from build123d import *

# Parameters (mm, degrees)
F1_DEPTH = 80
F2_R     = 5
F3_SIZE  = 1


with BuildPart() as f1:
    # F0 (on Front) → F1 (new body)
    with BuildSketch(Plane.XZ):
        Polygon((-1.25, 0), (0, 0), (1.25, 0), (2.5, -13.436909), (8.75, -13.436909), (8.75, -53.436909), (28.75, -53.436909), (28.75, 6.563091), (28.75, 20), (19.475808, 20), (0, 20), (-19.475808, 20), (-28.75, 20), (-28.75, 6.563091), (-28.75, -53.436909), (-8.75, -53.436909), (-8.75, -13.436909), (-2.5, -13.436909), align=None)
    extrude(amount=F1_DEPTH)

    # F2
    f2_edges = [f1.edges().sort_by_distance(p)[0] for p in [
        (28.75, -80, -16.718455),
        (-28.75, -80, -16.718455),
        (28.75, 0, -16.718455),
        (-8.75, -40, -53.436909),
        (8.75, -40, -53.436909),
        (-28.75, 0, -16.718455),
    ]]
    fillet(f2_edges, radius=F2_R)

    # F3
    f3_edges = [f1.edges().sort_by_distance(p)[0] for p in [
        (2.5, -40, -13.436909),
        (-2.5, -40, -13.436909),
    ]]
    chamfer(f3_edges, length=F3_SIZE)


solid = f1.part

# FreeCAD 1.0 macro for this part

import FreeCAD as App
import Part
import Sketcher
from FreeCAD import Vector
Q = App.Units.Quantity


def edges_at(feature, points):
    """Names of the edges that pass closest to the given points."""
    edges = feature.Shape.Edges
    near = lambda p: min(range(len(edges)), key=lambda i: edges[i].distToShape(Part.Vertex(*p))[0])
    return sorted({f"Edge{near(p) + 1}" for p in points})

doc = App.newDocument("Part")
body = doc.addObject("PartDesign::Body", "Body")

# Sketch on XZ plane
sketch1 = body.newObject("Sketcher::SketchObject", "Sketch")
sketch1.AttachmentSupport = (doc.getObject("XZ_Plane"), [""])
sketch1.MapMode = "FlatFace"
sketch1.addGeometry([
    Part.LineSegment(Vector(-1.2, 0, 0), Vector(1.2, 0, 0)),  # 0
    Part.LineSegment(Vector(1.2, 0, 0), Vector(2.5, -13.4, 0)),  # 1
    Part.LineSegment(Vector(2.5, -13.4, 0), Vector(8.8, -13.4, 0)),  # 2
    Part.LineSegment(Vector(8.8, -13.4, 0), Vector(8.8, -53.4, 0)),  # 3
    Part.LineSegment(Vector(8.8, -53.4, 0), Vector(28.8, -53.4, 0)),  # 4
    Part.LineSegment(Vector(28.8, -53.4, 0), Vector(28.8, 20, 0)),  # 5
    Part.LineSegment(Vector(28.8, 20, 0), Vector(-28.8, 20, 0)),  # 6
    Part.LineSegment(Vector(-28.8, 20, 0), Vector(-28.8, -53.4, 0)),  # 7
    Part.LineSegment(Vector(-28.8, -53.4, 0), Vector(-8.8, -53.4, 0)),  # 8
    Part.LineSegment(Vector(-8.8, -53.4, 0), Vector(-8.8, -13.4, 0)),  # 9
    Part.LineSegment(Vector(-8.8, -13.4, 0), Vector(-2.5, -13.4, 0)),  # 10
    Part.LineSegment(Vector(-2.5, -13.4, 0), Vector(-1.2, 0, 0)),  # 11
], False)
sketch1.addConstraint([
    Sketcher.Constraint("Coincident", 0, 2, 1, 1),
    Sketcher.Constraint("Coincident", 1, 2, 2, 1),
    Sketcher.Constraint("Coincident", 2, 2, 3, 1),
    Sketcher.Constraint("Coincident", 3, 2, 4, 1),
    Sketcher.Constraint("Coincident", 4, 2, 5, 1),
    Sketcher.Constraint("Coincident", 5, 2, 6, 1),
    Sketcher.Constraint("Coincident", 6, 2, 7, 1),
    Sketcher.Constraint("Coincident", 7, 2, 8, 1),
    Sketcher.Constraint("Coincident", 8, 2, 9, 1),
    Sketcher.Constraint("Coincident", 9, 2, 10, 1),
    Sketcher.Constraint("Coincident", 10, 2, 11, 1),
    Sketcher.Constraint("Coincident", 11, 2, 0, 1),
    Sketcher.Constraint("Horizontal", 0),
    Sketcher.Constraint("Horizontal", 2),
    Sketcher.Constraint("Vertical", 3),
    Sketcher.Constraint("Horizontal", 4),
    Sketcher.Constraint("Vertical", 5),
    Sketcher.Constraint("Horizontal", 6),
    Sketcher.Constraint("Vertical", 7),
    Sketcher.Constraint("Horizontal", 8),
    Sketcher.Constraint("Vertical", 9),
    Sketcher.Constraint("Horizontal", 10),
    Sketcher.Constraint("Symmetric", 0, 2, 11, 2, -1, 1),
    Sketcher.Constraint("Symmetric", 4, 2, 7, 2, -2),
    Sketcher.Constraint("Symmetric", 2, 2, 9, 2, -2),
    Sketcher.Constraint("Equal", 2, 10),
    Sketcher.Constraint("DistanceX", 4, 1, 4, 2, Q("20 mm")),
    Sketcher.Constraint("DistanceY", 3, 2, 3, 1, Q("40 mm")),
    Sketcher.Constraint("DistanceX", 0, 1, 0, 2, Q("2.5 mm")),
    Sketcher.Constraint("DistanceX", 6, 2, 6, 1, Q("57.5 mm")),
    Sketcher.Constraint("DistanceY", -1, 1, 5, 2, Q("20 mm")),
    Sketcher.Constraint("DistanceX", 10, 2, 1, 2, Q("5 mm")),
    Sketcher.Constraint("DistanceY", 5, 1, 5, 2, Q("73.436909 mm")),
])
pad1 = body.newObject("PartDesign::Pad", "Pad")
pad1.Profile = sketch1
pad1.Length = 80
doc.recompute()

fillet = body.newObject("PartDesign::Fillet", "Fillet")
fillet.Base = (pad1, edges_at(pad1, [
    (28.75, -80, -16.718),
    (-28.75, -80, -16.718),
    (28.75, 0, -16.718),
    (-8.75, -40, -53.437),
    (8.75, -40, -53.437),
    (-28.75, 0, -16.718),
]))
fillet.Radius = 5
doc.recompute()

chamfer = body.newObject("PartDesign::Chamfer", "Chamfer")
chamfer.Base = (fillet, edges_at(fillet, [(2.5, -40, -13.437), (-2.5, -40, -13.437)]))
chamfer.Size = 1

doc.recompute()
